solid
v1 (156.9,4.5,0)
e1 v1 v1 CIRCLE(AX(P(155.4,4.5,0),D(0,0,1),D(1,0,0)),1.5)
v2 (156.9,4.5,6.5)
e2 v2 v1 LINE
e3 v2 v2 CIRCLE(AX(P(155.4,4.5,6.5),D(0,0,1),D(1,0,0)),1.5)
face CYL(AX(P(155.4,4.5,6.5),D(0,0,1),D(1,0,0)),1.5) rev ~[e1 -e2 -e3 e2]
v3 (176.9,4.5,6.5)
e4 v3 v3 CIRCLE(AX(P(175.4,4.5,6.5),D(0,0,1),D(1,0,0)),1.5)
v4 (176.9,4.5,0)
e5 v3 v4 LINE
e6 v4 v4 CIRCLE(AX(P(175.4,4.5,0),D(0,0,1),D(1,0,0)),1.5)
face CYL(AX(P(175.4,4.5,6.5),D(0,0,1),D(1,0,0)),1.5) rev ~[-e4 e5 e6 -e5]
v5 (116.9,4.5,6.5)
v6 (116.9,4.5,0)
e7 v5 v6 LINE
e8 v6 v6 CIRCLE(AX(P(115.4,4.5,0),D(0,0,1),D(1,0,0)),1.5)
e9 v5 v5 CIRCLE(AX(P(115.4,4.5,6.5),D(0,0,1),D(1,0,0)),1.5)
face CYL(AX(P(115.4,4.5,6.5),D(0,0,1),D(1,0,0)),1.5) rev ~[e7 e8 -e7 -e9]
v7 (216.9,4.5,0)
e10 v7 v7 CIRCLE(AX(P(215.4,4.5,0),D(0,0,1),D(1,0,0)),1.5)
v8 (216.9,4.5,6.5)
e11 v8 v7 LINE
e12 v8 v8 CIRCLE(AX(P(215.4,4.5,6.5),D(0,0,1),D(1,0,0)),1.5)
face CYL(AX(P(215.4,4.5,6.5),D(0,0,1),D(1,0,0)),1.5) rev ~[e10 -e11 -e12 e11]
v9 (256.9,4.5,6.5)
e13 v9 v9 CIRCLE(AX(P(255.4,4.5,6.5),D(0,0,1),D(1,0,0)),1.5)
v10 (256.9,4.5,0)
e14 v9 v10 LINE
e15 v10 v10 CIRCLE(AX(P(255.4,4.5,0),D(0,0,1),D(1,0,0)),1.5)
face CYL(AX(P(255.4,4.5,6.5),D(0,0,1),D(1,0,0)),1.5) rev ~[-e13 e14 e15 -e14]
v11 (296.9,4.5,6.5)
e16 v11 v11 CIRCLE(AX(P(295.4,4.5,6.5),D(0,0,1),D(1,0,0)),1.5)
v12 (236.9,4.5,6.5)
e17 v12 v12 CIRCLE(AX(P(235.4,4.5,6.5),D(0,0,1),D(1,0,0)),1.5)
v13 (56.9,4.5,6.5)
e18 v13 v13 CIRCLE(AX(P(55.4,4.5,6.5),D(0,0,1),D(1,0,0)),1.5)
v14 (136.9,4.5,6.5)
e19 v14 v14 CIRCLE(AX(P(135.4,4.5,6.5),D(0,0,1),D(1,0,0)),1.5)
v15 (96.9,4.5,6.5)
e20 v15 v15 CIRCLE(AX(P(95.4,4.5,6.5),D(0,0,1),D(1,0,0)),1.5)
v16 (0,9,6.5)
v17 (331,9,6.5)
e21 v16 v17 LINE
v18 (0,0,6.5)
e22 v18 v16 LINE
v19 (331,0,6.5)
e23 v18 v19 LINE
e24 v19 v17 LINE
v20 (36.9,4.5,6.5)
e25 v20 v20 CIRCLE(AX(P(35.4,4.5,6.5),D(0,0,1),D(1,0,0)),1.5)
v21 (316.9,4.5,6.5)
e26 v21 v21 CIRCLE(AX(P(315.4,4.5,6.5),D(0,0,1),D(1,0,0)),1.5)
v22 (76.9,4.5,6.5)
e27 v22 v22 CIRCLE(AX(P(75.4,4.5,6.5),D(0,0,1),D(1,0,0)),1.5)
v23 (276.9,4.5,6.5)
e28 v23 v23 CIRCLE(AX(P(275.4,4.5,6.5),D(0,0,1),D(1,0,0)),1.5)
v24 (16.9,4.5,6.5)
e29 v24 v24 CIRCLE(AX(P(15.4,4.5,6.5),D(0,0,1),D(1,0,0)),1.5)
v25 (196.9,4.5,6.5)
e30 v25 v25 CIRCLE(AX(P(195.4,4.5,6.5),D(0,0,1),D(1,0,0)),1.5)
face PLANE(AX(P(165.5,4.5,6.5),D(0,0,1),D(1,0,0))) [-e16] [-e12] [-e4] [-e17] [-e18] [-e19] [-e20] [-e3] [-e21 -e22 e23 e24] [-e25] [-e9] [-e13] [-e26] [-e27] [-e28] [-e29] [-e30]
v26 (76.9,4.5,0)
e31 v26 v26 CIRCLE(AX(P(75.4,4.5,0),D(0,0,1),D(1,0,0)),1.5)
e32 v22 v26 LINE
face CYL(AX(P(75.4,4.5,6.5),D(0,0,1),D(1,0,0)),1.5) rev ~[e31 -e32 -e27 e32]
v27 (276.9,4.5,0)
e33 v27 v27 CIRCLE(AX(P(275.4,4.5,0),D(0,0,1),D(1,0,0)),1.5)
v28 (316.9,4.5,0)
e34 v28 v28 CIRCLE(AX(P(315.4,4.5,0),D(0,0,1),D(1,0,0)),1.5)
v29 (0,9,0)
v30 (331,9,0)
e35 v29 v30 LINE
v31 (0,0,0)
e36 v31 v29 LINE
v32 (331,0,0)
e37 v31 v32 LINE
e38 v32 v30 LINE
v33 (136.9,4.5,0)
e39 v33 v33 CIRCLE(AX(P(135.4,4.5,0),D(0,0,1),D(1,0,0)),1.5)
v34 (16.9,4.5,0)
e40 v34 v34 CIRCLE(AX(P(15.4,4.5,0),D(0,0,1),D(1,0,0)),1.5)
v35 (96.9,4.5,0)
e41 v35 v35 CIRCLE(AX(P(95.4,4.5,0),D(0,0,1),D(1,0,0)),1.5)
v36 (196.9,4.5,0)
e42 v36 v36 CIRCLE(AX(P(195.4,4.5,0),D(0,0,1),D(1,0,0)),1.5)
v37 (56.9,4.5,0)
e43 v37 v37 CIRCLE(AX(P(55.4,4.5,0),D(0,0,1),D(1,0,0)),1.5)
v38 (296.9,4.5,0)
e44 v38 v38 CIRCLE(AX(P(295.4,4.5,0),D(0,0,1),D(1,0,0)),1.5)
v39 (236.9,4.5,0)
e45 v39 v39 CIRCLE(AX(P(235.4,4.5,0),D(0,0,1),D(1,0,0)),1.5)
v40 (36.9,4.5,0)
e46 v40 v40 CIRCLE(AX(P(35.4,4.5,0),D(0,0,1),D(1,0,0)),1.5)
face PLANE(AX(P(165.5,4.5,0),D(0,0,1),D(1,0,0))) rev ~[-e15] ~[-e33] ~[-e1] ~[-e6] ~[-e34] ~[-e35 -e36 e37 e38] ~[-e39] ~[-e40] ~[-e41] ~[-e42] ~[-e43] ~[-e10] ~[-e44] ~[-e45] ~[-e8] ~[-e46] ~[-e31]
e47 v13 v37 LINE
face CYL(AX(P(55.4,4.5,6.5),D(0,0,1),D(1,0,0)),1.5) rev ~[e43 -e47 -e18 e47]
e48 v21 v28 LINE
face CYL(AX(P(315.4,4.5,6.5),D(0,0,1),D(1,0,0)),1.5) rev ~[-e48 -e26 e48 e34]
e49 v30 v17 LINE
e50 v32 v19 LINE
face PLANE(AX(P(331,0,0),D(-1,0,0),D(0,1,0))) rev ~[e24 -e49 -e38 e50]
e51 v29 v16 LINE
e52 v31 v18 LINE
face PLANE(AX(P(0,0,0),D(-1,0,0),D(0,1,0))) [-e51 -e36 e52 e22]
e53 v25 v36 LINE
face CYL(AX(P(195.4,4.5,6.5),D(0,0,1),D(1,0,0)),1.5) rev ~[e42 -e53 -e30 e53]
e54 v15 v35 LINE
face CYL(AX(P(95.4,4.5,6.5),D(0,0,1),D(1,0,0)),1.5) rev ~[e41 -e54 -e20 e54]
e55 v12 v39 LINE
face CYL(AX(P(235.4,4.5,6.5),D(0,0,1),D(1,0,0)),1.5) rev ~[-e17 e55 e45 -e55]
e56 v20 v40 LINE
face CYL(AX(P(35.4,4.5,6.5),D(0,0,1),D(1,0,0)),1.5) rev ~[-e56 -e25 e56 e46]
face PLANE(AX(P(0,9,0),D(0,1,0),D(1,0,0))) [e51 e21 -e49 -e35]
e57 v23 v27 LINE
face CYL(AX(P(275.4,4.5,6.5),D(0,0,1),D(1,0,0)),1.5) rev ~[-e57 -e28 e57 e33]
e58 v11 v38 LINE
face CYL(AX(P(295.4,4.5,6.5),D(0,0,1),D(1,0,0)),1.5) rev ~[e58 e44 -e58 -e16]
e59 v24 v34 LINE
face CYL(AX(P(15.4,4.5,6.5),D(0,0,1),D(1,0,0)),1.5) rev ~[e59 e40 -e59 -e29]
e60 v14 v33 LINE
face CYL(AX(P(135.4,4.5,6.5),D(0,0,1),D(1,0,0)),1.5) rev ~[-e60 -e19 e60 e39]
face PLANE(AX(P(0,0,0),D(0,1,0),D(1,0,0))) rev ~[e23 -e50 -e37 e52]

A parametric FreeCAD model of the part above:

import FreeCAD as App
import Part
import Sketcher

V = App.Vector


def add_polygon(sketch, points):
    """Adds a closed chain of lines whose ends are joined by coincident constraints."""
    first, n = sketch.GeometryCount, len(points)
    for a, b in zip(points, points[1:] + points[:1]):
        sketch.addGeometry(Part.LineSegment(App.Vector(*a, 0), App.Vector(*b, 0)), False)
    for i in range(n):
        sketch.addConstraint(Sketcher.Constraint("Coincident", first + i, 2, first + (i + 1) % n, 1))

doc = App.newDocument("Part")
params = doc.addObject("Spreadsheet::Sheet", "Params")
for row, (alias, value) in enumerate([
    ("sketch1_width", "331 mm"),
    ("sketch1_height", "9 mm"),
    ("pad1_length", "6.5 mm"),
    ("sketch2_diameter", "3 mm"),
    ("linearpattern_pitch", "20 mm"),
], start=1):
    params.set(f"A{row}", alias)
    params.set(f"B{row}", "=" + value)
    params.setAlias(f"B{row}", alias)

body = doc.addObject("PartDesign::Body", "Body")

sketch1 = body.newObject("Sketcher::SketchObject", "Sketch")
sketch1.AttachmentSupport = (doc.getObject("XY_Plane"), [""])
sketch1.MapMode = "FlatFace"
add_polygon(sketch1, [(0, 9), (0, 0), (331, 0), (331, 9)])
sketch1.addConstraint(Sketcher.Constraint("Vertical", 0))
sketch1.addConstraint(Sketcher.Constraint("Horizontal", 1))
sketch1.addConstraint(Sketcher.Constraint("Vertical", 2))
sketch1.addConstraint(Sketcher.Constraint("Horizontal", 3))
sketch1.addConstraint(Sketcher.Constraint("Coincident", 0, 2, -1, 1))
sketch1.addConstraint(Sketcher.Constraint("DistanceX", 1, 1, 1, 2, 331.0))
sketch1.addConstraint(Sketcher.Constraint("DistanceY", 0, 2, 0, 1, 9.0))
sketch1.setExpression("Constraints[9]", "Params.sketch1_width")
sketch1.setExpression("Constraints[10]", "Params.sketch1_height")
pad1 = body.newObject("PartDesign::Pad", "Pad")
pad1.Profile = sketch1
pad1.setExpression("Length", "Params.pad1_length")

sketch2 = body.newObject("Sketcher::SketchObject", "Sketch001")
sketch2.AttachmentSupport = (doc.getObject("XY_Plane"), [""])
sketch2.MapMode = "FlatFace"
sketch2.AttachmentOffset = App.Placement(V(0, 0, 6.5), App.Rotation())
sketch2.addGeometry(Part.Circle(V(15.4, 4.5, 0), V(0, 0, 1), 1.5), False)
sketch2.addConstraint(Sketcher.Constraint("Diameter", 0, 3.0))
sketch2.addConstraint(Sketcher.Constraint("DistanceX", -1, 1, 0, 3, 15.4))
sketch2.addConstraint(Sketcher.Constraint("DistanceY", -1, 1, 0, 3, 4.5))
sketch2.setExpression("Constraints[0]", "Params.sketch2_diameter")
pocket1 = body.newObject("PartDesign::Pocket", "Pocket")
pocket1.Profile = sketch2
pocket1.Type = "ThroughAll"
doc.recompute()

linearpattern = body.newObject("PartDesign::LinearPattern", "LinearPattern")
linearpattern.Originals = [pocket1]
linearpattern.Direction = (doc.getObject("X_Axis"), [""])
linearpattern.Mode = "offset"
linearpattern.setExpression("Offset", "Params.linearpattern_pitch")
linearpattern.Occurrences = 16
body.Tip = linearpattern

doc.recompute()
